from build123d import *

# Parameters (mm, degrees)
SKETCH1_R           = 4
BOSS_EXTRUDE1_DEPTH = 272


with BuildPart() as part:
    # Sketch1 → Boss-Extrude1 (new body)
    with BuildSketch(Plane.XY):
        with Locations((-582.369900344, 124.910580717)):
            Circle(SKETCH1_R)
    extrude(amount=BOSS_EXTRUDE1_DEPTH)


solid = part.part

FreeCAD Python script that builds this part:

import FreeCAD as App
import Part
import Sketcher

V = App.Vector
Q = App.Units.Quantity

doc = App.newDocument("Part")
params = doc.addObject("Spreadsheet::Sheet", "Params")
for row, (alias, value) in enumerate([
    ("sketch1_diameter", "8 mm"),
    ("pad1_length", "272 mm"),
], start=1):
    params.set(f"A{row}", alias)
    params.set(f"B{row}", "=" + value)
    params.setAlias(f"B{row}", alias)

body = doc.addObject("PartDesign::Body", "Body")

# Sketch on XY plane
sketch1 = doc.addObject("Sketcher::SketchObject", "Sketch")
body.addObject(sketch1)
sketch1.AttachmentSupport = (doc.XY_Plane, [""])
sketch1.MapMode = "FlatFace"
sketch1.addGeometry(Part.Circle(V(-582.3699, 124.910581, 0), V(0, 0, 1), 4), False)
sketch1.addConstraint([
    Sketcher.Constraint("Diameter", 0, Q("8 mm")),
    Sketcher.Constraint("DistanceX", 0, 3, -1, 1, Q("582.3699 mm")),
    Sketcher.Constraint("DistanceY", -1, 1, 0, 3, Q("124.910581 mm")),
])
sketch1.setExpression("Constraints[0]", "Params.sketch1_diameter")
pad1 = doc.addObject("PartDesign::Pad", "Pad")
body.addObject(pad1)
pad1.Profile = sketch1
pad1.setExpression("Length", "Params.pad1_length")

doc.recompute()
